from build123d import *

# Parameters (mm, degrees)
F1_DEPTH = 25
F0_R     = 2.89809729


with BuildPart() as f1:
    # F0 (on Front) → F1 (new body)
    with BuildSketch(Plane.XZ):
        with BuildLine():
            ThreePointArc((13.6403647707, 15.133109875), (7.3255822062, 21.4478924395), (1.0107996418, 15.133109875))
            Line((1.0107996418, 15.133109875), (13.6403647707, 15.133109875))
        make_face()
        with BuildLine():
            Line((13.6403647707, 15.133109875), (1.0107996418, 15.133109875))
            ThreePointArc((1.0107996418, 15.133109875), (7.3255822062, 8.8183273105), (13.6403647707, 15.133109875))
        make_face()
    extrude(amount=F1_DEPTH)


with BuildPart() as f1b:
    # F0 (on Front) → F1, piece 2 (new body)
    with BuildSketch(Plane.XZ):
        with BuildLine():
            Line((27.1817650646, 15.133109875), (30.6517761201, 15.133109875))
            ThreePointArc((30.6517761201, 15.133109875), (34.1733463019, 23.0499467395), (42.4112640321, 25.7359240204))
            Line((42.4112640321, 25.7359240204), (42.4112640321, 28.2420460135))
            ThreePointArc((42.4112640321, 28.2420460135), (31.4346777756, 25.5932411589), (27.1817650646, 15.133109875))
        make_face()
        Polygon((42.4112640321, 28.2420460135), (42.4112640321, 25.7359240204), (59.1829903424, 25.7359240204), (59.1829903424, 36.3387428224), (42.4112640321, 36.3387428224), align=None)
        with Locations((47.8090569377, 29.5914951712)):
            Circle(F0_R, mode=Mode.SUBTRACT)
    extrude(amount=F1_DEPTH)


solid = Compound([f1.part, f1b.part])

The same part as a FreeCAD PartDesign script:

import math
import FreeCAD as App
import Part
import Sketcher
Q = App.Units.Quantity

doc = App.newDocument("Part")
body = doc.addObject("PartDesign::Body", "Body")

# Sketch on XZ plane
sketch1 = body.newObject("Sketcher::SketchObject", "Sketch")
sketch1.AttachmentSupport = (doc.getObject("XZ_Plane"), [""])
sketch1.MapMode = "FlatFace"
sketch1.addGeometry([
    Part.ArcOfCircle(Part.Circle(App.Vector(7, 15, 0), App.Vector(0, 0, 1), 6), math.radians(0), math.radians(180)),
    Part.ArcOfCircle(Part.Circle(App.Vector(7, 15, 0), App.Vector(0, 0, 1), 6), math.radians(180), math.radians(360)),
], False)
sketch1.addConstraint([
    Sketcher.Constraint("Tangent", 0, 1, 1, 2),
    Sketcher.Constraint("Coincident", 1, 1, 0, 2),
    Sketcher.Constraint("Horizontal", 1, 3, 0, 1),
    Sketcher.Constraint("Horizontal", 0, 1, 1, 1),
    Sketcher.Constraint("Radius", 0, Q("6.314783 mm")),
    Sketcher.Constraint("DistanceX", -1, 1, 1, 1, Q("1.0108 mm")),
    Sketcher.Constraint("DistanceY", -1, 1, 0, 3, Q("15.13311 mm")),
])
pad1 = body.newObject("PartDesign::Pad", "Pad")
pad1.Profile = sketch1
pad1.Length = 25
body2 = doc.addObject("PartDesign::Body", "Body001")

# Sketch on XZ plane
sketch2 = body2.newObject("Sketcher::SketchObject", "Sketch001")
sketch2.AttachmentSupport = (doc.getObject("XZ_Plane001"), [""])
sketch2.MapMode = "FlatFace"
sketch2.addGeometry([
    Part.LineSegment(App.Vector(27.2, 15.1, 0), App.Vector(30.7, 15.1, 0)),  # 0
    Part.ArcOfCircle(Part.Circle(App.Vector(41.3, 15.1, 0), App.Vector(0, 0, 1), 10.7), math.radians(84), math.radians(180)),  # 1
    Part.LineSegment(App.Vector(42.4, 25.7, 0), App.Vector(59.2, 25.7, 0)),  # 2
    Part.LineSegment(App.Vector(59.2, 25.7, 0), App.Vector(59.2, 36.3, 0)),  # 3
    Part.LineSegment(App.Vector(59.2, 36.3, 0), App.Vector(42.4, 36.3, 0)),  # 4
    Part.LineSegment(App.Vector(42.4, 36.3, 0), App.Vector(42.4, 28.2, 0)),  # 5
    Part.ArcOfCircle(Part.Circle(App.Vector(39.5, 16.2, 0), App.Vector(0, 0, 1), 12.4), math.radians(76), math.radians(185)),  # 6
    Part.Circle(App.Vector(47.8, 29.6, 0), App.Vector(0, 0, 1), 2.9),  # 7
], False)
sketch2.addConstraint([
    Sketcher.Constraint("Coincident", 0, 2, 1, 2),
    Sketcher.Constraint("Coincident", 1, 1, 2, 1),
    Sketcher.Constraint("Coincident", 2, 2, 3, 1),
    Sketcher.Constraint("Coincident", 3, 2, 4, 1),
    Sketcher.Constraint("Coincident", 4, 2, 5, 1),
    Sketcher.Constraint("Coincident", 5, 2, 6, 1),
    Sketcher.Constraint("Coincident", 6, 2, 0, 1),
    Sketcher.Constraint("Horizontal", 0),
    Sketcher.Constraint("Horizontal", 2),
    Sketcher.Constraint("Vertical", 3),
    Sketcher.Constraint("Horizontal", 4),
    Sketcher.Constraint("Vertical", 5),
    Sketcher.Constraint("Horizontal", 1, 3, 0, 2),
    Sketcher.Constraint("Vertical", 1, 1, 4, 2),
    Sketcher.Constraint("Radius", 1, Q("10.6597 mm")),
    Sketcher.Constraint("Radius", 6, Q("12.370952 mm")),
    Sketcher.Constraint("Diameter", 7, Q("5.796195 mm")),
    Sketcher.Constraint("DistanceX", 0, 1, 0, 2, Q("3.470011 mm")),
    Sketcher.Constraint("DistanceY", 3, 1, 3, 2, Q("10.602819 mm")),
    Sketcher.Constraint("DistanceX", 6, 2, 1, 1, Q("15.229499 mm")),
    Sketcher.Constraint("DistanceX", 2, 1, 2, 2, Q("16.771726 mm")),
    Sketcher.Constraint("DistanceY", 5, 2, 5, 1, Q("8.096697 mm")),
    Sketcher.Constraint("DistanceY", -1, 1, 1, 3, Q("15.13311 mm")),
    Sketcher.Constraint("DistanceX", -1, 1, 2, 2, Q("59.18299 mm")),
    Sketcher.Constraint("DistanceX", 6, 3, 7, 3, Q("8.30394 mm")),
    Sketcher.Constraint("DistanceY", 1, 1, 7, 3, Q("3.855571 mm")),
])
pad2 = body2.newObject("PartDesign::Pad", "Pad001")
pad2.Profile = sketch2
pad2.Length = 25

doc.recompute()
